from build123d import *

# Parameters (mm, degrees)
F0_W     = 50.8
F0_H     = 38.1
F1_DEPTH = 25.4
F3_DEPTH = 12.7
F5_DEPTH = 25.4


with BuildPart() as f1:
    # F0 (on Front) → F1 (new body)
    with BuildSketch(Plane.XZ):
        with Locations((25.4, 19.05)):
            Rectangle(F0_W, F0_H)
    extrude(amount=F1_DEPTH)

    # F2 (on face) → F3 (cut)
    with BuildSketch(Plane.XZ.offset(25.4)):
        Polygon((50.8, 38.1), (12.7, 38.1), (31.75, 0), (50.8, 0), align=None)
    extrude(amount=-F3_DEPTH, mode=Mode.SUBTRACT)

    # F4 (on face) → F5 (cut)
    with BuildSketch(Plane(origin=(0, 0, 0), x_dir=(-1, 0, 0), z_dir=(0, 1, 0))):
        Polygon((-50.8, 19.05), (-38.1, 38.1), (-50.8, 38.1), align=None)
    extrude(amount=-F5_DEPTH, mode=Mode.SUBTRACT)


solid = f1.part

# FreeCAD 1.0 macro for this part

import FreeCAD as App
import Part
import Sketcher

V = App.Vector
Q = App.Units.Quantity


def add_polygon(sketch, points):
    """Adds a closed chain of lines whose ends are joined by coincident constraints."""
    first, n = sketch.GeometryCount, len(points)
    for a, b in zip(points, points[1:] + points[:1]):
        sketch.addGeometry(Part.LineSegment(App.Vector(*a, 0), App.Vector(*b, 0)), False)
    for i in range(n):
        sketch.addConstraint(Sketcher.Constraint("Coincident", first + i, 2, first + (i + 1) % n, 1))

doc = App.newDocument("Part")
body = doc.addObject("PartDesign::Body", "Body")

sketch1 = body.newObject("Sketcher::SketchObject", "Sketch")
sketch1.AttachmentSupport = (doc.getObject("XZ_Plane"), [""])
sketch1.MapMode = "FlatFace"
add_polygon(sketch1, [(0, 38.1), (0, 0), (50.8, 0), (50.8, 38.1)])
sketch1.addConstraint([
    Sketcher.Constraint("Vertical", 0),
    Sketcher.Constraint("Horizontal", 1),
    Sketcher.Constraint("Vertical", 2),
    Sketcher.Constraint("Horizontal", 3),
    Sketcher.Constraint("Coincident", 0, 2, -1, 1),
    Sketcher.Constraint("DistanceX", 1, 1, 1, 2, Q("2 in")),
    Sketcher.Constraint("DistanceY", 0, 2, 0, 1, Q("1.5 in")),
])
pad1 = body.newObject("PartDesign::Pad", "Pad")
pad1.Profile = sketch1
pad1.Length = Q("1 in")

sketch2 = body.newObject("Sketcher::SketchObject", "Sketch001")
sketch2.AttachmentSupport = (doc.getObject("XZ_Plane"), [""])
sketch2.MapMode = "FlatFace"
sketch2.AttachmentOffset = App.Placement(V(0, 0, 1 * 25.4), App.Rotation())
add_polygon(sketch2, [(50.8, 38.1), (12.7, 38.1), (31.75, 0), (50.8, 0)])
sketch2.addConstraint([
    Sketcher.Constraint("Horizontal", 0),
    Sketcher.Constraint("Horizontal", 2),
    Sketcher.Constraint("Vertical", 3),
    Sketcher.Constraint("PointOnObject", 1, 2, -1),
    Sketcher.Constraint("Equal", 0, 3),
    Sketcher.Constraint("DistanceX", 0, 2, 0, 1, Q("1.5 in")),
    Sketcher.Constraint("DistanceX", -1, 1, 2, 2, Q("2 in")),
    Sketcher.Constraint("DistanceX", 2, 1, 2, 2, Q("0.75 in")),
])
pocket1 = body.newObject("PartDesign::Pocket", "Pocket")
pocket1.Profile = sketch2
pocket1.Length = Q("0.5 in")

sketch3 = body.newObject("Sketcher::SketchObject", "Sketch002")
sketch3.AttachmentSupport = (doc.getObject("XZ_Plane"), [""])
sketch3.MapMode = "FlatFace"
add_polygon(sketch3, [(50.8, 19.05), (38.1, 38.1), (50.8, 38.1)])
sketch3.addConstraint([
    Sketcher.Constraint("Horizontal", 1),
    Sketcher.Constraint("Vertical", 2),
    Sketcher.Constraint("DistanceX", 1, 1, 1, 2, Q("0.5 in")),
    Sketcher.Constraint("DistanceX", -1, 1, 1, 2, Q("2 in")),
    Sketcher.Constraint("DistanceY", 2, 2, 2, 1, Q("0.75 in")),
    Sketcher.Constraint("DistanceY", -1, 1, 0, 2, Q("1.5 in")),
])
pocket2 = body.newObject("PartDesign::Pocket", "Pocket001")
pocket2.Profile = sketch3
pocket2.Length = Q("1 in")
pocket2.Reversed = True

doc.recompute()
